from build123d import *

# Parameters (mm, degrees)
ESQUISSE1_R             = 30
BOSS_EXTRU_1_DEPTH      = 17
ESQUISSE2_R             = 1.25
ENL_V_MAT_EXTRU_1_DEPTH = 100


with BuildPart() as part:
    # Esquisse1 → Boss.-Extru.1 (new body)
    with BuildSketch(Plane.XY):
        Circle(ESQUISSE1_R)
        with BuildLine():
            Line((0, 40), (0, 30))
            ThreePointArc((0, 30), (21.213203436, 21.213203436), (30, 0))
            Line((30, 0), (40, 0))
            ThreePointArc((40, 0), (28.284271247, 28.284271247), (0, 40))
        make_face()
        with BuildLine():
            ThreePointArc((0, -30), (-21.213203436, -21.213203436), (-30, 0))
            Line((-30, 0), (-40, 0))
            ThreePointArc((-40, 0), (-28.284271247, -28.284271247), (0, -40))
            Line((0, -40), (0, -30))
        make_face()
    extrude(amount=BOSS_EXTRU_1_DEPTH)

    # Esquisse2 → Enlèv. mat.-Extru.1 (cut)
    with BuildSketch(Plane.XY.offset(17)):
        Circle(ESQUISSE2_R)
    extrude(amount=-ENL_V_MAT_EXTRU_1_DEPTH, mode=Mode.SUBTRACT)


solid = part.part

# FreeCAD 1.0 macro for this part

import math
import FreeCAD as App
import Part
import Sketcher
Q = App.Units.Quantity

doc = App.newDocument("Part")
params = doc.addObject("Spreadsheet::Sheet", "Params")
for row, (alias, value) in enumerate([
    ("sketch1_radius", "30 mm"),
    ("sketch1_radius2", "40 mm"),
    ("pad1_length", "17 mm"),
    ("sketch2_diameter", "2.5 mm"),
    ("pocket1_length", "100 mm"),
], start=1):
    params.set(f"A{row}", alias)
    params.set(f"B{row}", "=" + value)
    params.setAlias(f"B{row}", alias)

body = doc.addObject("PartDesign::Body", "Body")

sketch1 = body.newObject("Sketcher::SketchObject", "Sketch")
sketch1.AttachmentSupport = (doc.getObject("XY_Plane"), [""])
sketch1.MapMode = "FlatFace"
sketch1.addGeometry([
    Part.ArcOfCircle(Part.Circle(App.Vector(0, 0, 0), App.Vector(0, 0, 1), 30), math.radians(90), math.radians(180)),
    Part.LineSegment(App.Vector(-30, 0, 0), App.Vector(-40, 0, 0)),
    Part.ArcOfCircle(Part.Circle(App.Vector(0, 0, 0), App.Vector(0, 0, 1), 40), math.radians(-180), math.radians(-90)),
    Part.LineSegment(App.Vector(0, -40, 0), App.Vector(0, -30, 0)),
    Part.ArcOfCircle(Part.Circle(App.Vector(0, 0, 0), App.Vector(0, 0, 1), 30), math.radians(-90), math.radians(0)),
    Part.LineSegment(App.Vector(30, 0, 0), App.Vector(40, 0, 0)),
    Part.ArcOfCircle(Part.Circle(App.Vector(0, 0, 0), App.Vector(0, 0, 1), 40), math.radians(0), math.radians(90)),
    Part.LineSegment(App.Vector(0, 40, 0), App.Vector(0, 30, 0)),
], False)
sketch1.addConstraint([
    Sketcher.Constraint("Coincident", 0, 2, 1, 1),
    Sketcher.Constraint("Coincident", 1, 2, 2, 1),
    Sketcher.Constraint("Coincident", 2, 2, 3, 1),
    Sketcher.Constraint("Coincident", 3, 2, 4, 1),
    Sketcher.Constraint("Coincident", 4, 2, 5, 1),
    Sketcher.Constraint("Coincident", 5, 2, 6, 1),
    Sketcher.Constraint("Coincident", 6, 2, 7, 1),
    Sketcher.Constraint("Coincident", 7, 2, 0, 1),
    Sketcher.Constraint("Horizontal", 1),
    Sketcher.Constraint("Vertical", 3),
    Sketcher.Constraint("Horizontal", 5),
    Sketcher.Constraint("Vertical", 7),
    Sketcher.Constraint("Coincident", 0, 3, -1, 1),
    Sketcher.Constraint("Coincident", 2, 3, -1, 1),
    Sketcher.Constraint("Coincident", 4, 3, -1, 1),
    Sketcher.Constraint("Coincident", 6, 3, -1, 1),
    Sketcher.Constraint("Equal", 0, 4),
    Sketcher.Constraint("Equal", 2, 6),
    Sketcher.Constraint("PointOnObject", 0, 2, -1),
    Sketcher.Constraint("PointOnObject", 2, 2, -2),
    Sketcher.Constraint("PointOnObject", 4, 2, -1),
    Sketcher.Constraint("PointOnObject", 6, 2, -2),
    Sketcher.Constraint("Radius", 0, Q("30 mm")),
    Sketcher.Constraint("Radius", 2, Q("40 mm")),
])
sketch1.setExpression("Constraints[22]", "Params.sketch1_radius")
sketch1.setExpression("Constraints[23]", "Params.sketch1_radius2")
pad1 = body.newObject("PartDesign::Pad", "Pad")
pad1.Profile = sketch1
pad1.setExpression("Length", "Params.pad1_length")

sketch2 = body.newObject("Sketcher::SketchObject", "Sketch001")
sketch2.AttachmentSupport = (doc.getObject("XY_Plane"), [""])
sketch2.MapMode = "FlatFace"
sketch2.AttachmentOffset = App.Placement(App.Vector(0, 0, 17), App.Rotation())
sketch2.addGeometry(Part.Circle(App.Vector(0, 0, 0), App.Vector(0, 0, 1), 1.2), False)
sketch2.addConstraint([
    Sketcher.Constraint("Coincident", 0, 3, -1, 1),
    Sketcher.Constraint("Diameter", 0, Q("2.5 mm")),
])
sketch2.setExpression("Constraints[1]", "Params.sketch2_diameter")
pocket1 = body.newObject("PartDesign::Pocket", "Pocket")
pocket1.Profile = sketch2
pocket1.setExpression("Length", "Params.pocket1_length")

doc.recompute()
